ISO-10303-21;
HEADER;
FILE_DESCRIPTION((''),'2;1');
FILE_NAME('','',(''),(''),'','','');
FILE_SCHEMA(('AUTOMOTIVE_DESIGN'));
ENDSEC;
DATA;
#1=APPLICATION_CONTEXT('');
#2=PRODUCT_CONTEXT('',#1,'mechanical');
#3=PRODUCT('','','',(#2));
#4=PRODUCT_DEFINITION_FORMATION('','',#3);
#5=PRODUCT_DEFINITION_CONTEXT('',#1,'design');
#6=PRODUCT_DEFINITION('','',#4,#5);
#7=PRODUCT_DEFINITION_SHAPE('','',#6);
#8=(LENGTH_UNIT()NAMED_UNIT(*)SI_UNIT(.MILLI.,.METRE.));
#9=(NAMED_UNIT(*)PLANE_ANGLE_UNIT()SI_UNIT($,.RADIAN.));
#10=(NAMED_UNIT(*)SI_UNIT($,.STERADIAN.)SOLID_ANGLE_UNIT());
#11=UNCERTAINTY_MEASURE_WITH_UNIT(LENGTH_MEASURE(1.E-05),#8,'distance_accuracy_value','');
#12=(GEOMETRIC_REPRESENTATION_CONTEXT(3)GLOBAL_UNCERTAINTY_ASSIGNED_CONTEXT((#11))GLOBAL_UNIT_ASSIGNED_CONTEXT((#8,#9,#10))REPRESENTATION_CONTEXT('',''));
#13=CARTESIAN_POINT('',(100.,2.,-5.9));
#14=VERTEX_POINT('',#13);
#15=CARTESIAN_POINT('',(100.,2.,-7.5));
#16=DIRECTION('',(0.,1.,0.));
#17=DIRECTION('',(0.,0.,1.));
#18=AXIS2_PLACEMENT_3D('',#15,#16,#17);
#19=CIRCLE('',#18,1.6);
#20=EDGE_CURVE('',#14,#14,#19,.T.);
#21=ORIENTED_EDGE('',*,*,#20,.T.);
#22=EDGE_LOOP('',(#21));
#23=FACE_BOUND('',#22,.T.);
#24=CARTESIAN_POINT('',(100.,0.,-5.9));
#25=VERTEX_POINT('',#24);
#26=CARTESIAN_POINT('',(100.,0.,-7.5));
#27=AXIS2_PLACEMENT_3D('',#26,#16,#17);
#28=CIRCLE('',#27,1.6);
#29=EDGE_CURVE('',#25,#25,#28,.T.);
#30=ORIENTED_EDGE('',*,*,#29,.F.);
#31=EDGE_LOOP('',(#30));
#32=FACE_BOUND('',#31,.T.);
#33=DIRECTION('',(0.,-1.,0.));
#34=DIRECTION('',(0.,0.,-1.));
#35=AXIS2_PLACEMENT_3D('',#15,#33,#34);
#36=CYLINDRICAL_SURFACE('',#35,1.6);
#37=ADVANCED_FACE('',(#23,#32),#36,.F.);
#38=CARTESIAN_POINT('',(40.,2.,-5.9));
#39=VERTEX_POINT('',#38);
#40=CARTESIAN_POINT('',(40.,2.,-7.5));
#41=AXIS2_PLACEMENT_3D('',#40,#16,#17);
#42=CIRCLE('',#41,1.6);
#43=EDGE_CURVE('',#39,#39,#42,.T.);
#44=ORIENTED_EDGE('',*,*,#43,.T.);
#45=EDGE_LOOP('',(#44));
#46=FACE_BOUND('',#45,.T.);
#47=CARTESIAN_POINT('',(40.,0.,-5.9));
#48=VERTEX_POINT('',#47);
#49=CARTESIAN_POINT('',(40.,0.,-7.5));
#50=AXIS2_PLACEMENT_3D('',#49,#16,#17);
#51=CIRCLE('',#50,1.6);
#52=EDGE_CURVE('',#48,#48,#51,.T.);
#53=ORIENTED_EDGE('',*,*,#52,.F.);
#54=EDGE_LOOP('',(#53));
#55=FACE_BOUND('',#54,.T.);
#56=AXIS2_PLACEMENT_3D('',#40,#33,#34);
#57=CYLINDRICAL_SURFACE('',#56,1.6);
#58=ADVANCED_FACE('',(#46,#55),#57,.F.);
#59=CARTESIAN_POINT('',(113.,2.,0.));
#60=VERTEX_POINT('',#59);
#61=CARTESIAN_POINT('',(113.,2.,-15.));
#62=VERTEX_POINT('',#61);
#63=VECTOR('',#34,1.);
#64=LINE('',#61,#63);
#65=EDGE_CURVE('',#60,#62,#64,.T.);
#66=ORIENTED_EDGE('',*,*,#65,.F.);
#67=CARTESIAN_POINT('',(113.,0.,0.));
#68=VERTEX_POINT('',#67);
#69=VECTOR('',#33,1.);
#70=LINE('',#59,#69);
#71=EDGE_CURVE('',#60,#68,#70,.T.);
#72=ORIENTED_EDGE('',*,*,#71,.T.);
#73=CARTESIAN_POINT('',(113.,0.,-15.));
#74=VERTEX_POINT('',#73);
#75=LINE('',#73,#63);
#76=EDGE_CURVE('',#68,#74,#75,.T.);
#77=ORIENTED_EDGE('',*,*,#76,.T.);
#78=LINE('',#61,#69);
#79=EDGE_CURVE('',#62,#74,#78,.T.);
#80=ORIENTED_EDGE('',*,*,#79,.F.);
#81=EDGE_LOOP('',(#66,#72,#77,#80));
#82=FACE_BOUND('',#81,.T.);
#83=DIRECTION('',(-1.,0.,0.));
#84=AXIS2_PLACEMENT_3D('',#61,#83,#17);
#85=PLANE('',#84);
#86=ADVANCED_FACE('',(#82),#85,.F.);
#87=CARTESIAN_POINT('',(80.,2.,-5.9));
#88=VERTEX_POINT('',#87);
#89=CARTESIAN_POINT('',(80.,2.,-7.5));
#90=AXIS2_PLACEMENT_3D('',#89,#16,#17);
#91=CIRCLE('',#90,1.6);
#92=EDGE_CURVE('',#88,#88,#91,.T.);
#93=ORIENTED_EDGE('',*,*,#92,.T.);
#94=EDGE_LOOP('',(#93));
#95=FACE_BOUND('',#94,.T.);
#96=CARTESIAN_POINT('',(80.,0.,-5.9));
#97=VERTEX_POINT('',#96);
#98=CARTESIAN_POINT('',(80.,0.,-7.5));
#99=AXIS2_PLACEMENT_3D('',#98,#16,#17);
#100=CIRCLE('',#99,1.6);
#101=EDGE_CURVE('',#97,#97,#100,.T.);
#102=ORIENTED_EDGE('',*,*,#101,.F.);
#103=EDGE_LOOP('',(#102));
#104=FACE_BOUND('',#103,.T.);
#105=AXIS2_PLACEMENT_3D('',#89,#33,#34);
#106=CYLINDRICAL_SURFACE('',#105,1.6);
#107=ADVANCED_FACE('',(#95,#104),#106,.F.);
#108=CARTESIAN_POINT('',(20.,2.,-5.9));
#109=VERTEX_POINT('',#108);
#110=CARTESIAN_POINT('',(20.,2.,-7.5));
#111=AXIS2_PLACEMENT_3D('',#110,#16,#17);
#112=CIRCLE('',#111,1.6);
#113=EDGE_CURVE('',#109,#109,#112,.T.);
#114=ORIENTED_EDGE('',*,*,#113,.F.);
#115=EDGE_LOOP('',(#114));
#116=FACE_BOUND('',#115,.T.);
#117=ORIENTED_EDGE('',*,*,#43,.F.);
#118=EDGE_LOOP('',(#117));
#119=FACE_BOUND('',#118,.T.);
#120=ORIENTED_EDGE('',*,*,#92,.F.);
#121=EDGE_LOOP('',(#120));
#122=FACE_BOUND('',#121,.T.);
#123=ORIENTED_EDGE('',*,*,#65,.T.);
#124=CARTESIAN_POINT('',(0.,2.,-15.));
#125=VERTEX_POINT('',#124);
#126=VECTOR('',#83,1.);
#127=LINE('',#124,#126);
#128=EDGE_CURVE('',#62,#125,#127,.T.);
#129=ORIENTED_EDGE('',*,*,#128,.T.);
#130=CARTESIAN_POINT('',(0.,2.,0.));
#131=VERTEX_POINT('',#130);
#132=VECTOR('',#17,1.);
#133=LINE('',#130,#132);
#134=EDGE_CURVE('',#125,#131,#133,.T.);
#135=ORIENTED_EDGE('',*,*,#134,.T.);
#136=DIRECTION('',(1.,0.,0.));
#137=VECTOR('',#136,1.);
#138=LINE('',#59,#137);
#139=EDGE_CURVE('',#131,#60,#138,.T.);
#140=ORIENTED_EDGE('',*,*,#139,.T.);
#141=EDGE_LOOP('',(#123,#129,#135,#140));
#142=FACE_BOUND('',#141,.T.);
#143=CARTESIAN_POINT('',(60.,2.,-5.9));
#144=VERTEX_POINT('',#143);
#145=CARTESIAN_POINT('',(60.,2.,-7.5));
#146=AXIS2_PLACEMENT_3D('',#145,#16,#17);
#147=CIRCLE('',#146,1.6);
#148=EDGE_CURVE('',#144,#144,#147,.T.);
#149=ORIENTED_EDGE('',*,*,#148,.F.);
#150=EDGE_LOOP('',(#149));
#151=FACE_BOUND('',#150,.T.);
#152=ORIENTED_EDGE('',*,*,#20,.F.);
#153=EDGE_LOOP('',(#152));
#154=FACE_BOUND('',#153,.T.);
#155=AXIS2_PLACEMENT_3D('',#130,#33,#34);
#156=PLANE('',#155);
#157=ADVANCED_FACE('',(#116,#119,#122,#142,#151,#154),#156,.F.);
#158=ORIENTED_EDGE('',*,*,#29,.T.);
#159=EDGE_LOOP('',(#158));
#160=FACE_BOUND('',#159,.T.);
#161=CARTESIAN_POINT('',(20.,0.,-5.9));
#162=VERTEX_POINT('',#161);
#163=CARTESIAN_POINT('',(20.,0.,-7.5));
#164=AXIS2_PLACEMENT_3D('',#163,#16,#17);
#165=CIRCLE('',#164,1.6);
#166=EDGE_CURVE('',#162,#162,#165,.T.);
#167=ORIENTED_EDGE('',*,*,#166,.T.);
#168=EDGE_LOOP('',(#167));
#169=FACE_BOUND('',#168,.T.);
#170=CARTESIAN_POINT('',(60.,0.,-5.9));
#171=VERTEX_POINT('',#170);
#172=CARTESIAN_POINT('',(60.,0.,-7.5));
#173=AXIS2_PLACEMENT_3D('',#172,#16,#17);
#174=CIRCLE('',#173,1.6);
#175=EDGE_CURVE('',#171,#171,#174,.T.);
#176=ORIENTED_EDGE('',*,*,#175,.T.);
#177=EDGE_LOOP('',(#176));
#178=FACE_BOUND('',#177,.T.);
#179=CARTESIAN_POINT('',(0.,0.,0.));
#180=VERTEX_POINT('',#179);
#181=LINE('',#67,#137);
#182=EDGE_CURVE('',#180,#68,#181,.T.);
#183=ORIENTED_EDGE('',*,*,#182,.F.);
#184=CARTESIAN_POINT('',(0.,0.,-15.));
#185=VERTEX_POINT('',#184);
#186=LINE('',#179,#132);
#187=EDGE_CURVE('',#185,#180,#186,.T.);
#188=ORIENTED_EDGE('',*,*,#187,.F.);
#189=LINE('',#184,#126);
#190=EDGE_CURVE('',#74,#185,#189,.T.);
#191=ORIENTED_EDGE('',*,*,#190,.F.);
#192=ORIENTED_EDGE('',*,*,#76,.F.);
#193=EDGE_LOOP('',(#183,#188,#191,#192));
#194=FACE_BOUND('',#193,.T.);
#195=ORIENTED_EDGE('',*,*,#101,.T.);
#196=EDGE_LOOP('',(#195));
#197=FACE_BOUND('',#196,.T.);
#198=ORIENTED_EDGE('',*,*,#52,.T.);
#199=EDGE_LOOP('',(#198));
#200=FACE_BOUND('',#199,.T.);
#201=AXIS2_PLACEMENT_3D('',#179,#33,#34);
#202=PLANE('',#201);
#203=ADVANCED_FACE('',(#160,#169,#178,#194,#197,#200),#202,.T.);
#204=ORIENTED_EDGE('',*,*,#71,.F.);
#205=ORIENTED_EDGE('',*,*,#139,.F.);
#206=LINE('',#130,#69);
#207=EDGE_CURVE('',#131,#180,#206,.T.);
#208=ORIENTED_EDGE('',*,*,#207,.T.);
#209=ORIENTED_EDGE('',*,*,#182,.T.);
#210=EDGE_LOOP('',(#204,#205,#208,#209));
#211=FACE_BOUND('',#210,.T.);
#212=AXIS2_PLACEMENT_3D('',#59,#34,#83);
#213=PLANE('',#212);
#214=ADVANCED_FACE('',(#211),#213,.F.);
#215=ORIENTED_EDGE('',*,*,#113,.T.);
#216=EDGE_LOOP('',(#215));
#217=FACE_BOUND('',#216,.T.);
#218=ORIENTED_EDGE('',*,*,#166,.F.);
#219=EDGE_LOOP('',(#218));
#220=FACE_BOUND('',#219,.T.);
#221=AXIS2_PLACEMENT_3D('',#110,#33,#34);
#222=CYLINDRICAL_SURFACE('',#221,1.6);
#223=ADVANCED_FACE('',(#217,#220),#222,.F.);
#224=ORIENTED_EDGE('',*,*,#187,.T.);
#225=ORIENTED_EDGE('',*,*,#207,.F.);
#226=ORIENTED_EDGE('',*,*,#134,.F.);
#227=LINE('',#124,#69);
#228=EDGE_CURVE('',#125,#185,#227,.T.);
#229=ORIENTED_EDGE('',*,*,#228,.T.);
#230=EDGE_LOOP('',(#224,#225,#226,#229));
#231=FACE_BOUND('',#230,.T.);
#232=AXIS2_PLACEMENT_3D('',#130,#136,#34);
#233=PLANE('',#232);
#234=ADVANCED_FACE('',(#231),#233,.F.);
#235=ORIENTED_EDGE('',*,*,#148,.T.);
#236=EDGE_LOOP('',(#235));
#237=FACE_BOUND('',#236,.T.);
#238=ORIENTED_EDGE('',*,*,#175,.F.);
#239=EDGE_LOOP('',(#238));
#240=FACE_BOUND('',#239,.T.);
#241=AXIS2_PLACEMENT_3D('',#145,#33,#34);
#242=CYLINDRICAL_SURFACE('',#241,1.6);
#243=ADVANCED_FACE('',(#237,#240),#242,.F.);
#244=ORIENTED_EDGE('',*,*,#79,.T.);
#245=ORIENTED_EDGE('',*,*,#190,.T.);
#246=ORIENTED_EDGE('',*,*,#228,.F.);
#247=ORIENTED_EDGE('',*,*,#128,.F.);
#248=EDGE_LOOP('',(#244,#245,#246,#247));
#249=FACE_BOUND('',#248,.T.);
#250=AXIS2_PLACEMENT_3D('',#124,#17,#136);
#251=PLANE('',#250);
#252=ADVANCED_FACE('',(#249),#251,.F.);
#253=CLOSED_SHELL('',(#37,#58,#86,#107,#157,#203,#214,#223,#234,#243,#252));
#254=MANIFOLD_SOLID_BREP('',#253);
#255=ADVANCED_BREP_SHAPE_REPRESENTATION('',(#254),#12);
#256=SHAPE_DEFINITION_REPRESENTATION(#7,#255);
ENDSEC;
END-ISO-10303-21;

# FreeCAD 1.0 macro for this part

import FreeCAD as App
import Part
import Sketcher

V = App.Vector
Q = App.Units.Quantity

doc = App.newDocument("Part")
params = doc.addObject("Spreadsheet::Sheet", "Params")
for row, (alias, value) in enumerate([
    ("sketch1_diameter", "3.2 mm"),
    ("sketch1_width", "113 mm"),
    ("sketch1_height", "15 mm"),
    ("pad1_length", "2 mm"),
], start=1):
    params.set(f"A{row}", alias)
    params.set(f"B{row}", "=" + value)
    params.setAlias(f"B{row}", alias)

body = doc.addObject("PartDesign::Body", "Body")

sketch1 = body.newObject("Sketcher::SketchObject", "Sketch")
sketch1.AttachmentSupport = (doc.getObject("XZ_Plane"), [""])
sketch1.MapMode = "FlatFace"
sketch1.addGeometry(Part.LineSegment(V(0, -15, 0), V(0, 0, 0)), False)
sketch1.addGeometry(Part.LineSegment(V(0, 0, 0), V(113, 0, 0)), False)
sketch1.addGeometry(Part.LineSegment(V(113, 0, 0), V(113, -15, 0)), False)
sketch1.addGeometry(Part.LineSegment(V(113, -15, 0), V(0, -15, 0)), False)
sketch1.addGeometry(Part.Circle(V(20, -7.5, 0), V(0, 0, 1), 1.6), False)
sketch1.addGeometry(Part.Circle(V(40, -7.5, 0), V(0, 0, 1), 1.6), False)
sketch1.addGeometry(Part.Circle(V(60, -7.5, 0), V(0, 0, 1), 1.6), False)
sketch1.addGeometry(Part.Circle(V(80, -7.5, 0), V(0, 0, 1), 1.6), False)
sketch1.addGeometry(Part.Circle(V(100, -7.5, 0), V(0, 0, 1), 1.6), False)
sketch1.addConstraint(Sketcher.Constraint("Coincident", 0, 2, 1, 1))
sketch1.addConstraint(Sketcher.Constraint("Coincident", 1, 2, 2, 1))
sketch1.addConstraint(Sketcher.Constraint("Coincident", 2, 2, 3, 1))
sketch1.addConstraint(Sketcher.Constraint("Coincident", 3, 2, 0, 1))
sketch1.addConstraint(Sketcher.Constraint("Vertical", 0))
sketch1.addConstraint(Sketcher.Constraint("Horizontal", 1))
sketch1.addConstraint(Sketcher.Constraint("Vertical", 2))
sketch1.addConstraint(Sketcher.Constraint("Horizontal", 3))
sketch1.addConstraint(Sketcher.Constraint("Coincident", 0, 2, -1, 1))
sketch1.addConstraint(Sketcher.Constraint("Equal", 4, 5))
sketch1.addConstraint(Sketcher.Constraint("Equal", 5, 6))
sketch1.addConstraint(Sketcher.Constraint("Equal", 6, 7))
sketch1.addConstraint(Sketcher.Constraint("Equal", 7, 8))
sketch1.addConstraint(Sketcher.Constraint("Horizontal", 4, 3, 5, 3))
sketch1.addConstraint(Sketcher.Constraint("Horizontal", 5, 3, 6, 3))
sketch1.addConstraint(Sketcher.Constraint("Horizontal", 6, 3, 7, 3))
sketch1.addConstraint(Sketcher.Constraint("Horizontal", 7, 3, 8, 3))
sketch1.addConstraint(Sketcher.Constraint("Diameter", 4, Q("3.2 mm")))
sketch1.addConstraint(Sketcher.Constraint("DistanceX", 1, 1, 1, 2, Q("113 mm")))
sketch1.addConstraint(Sketcher.Constraint("DistanceY", 0, 1, 0, 2, Q("15 mm")))
sketch1.addConstraint(Sketcher.Constraint("DistanceX", -1, 1, 4, 3, Q("20 mm")))
sketch1.addConstraint(Sketcher.Constraint("DistanceX", -1, 1, 5, 3, Q("40 mm")))
sketch1.addConstraint(Sketcher.Constraint("DistanceX", -1, 1, 6, 3, Q("60 mm")))
sketch1.addConstraint(Sketcher.Constraint("DistanceX", -1, 1, 7, 3, Q("80 mm")))
sketch1.addConstraint(Sketcher.Constraint("DistanceX", -1, 1, 8, 3, Q("100 mm")))
sketch1.addConstraint(Sketcher.Constraint("DistanceY", 4, 3, -1, 1, Q("7.5 mm")))
sketch1.setExpression("Constraints[17]", "Params.sketch1_diameter")
sketch1.setExpression("Constraints[18]", "Params.sketch1_width")
sketch1.setExpression("Constraints[19]", "Params.sketch1_height")
pad1 = body.newObject("PartDesign::Pad", "Pad")
pad1.Profile = sketch1
pad1.setExpression("Length", "Params.pad1_length")
pad1.Reversed = True

doc.recompute()
